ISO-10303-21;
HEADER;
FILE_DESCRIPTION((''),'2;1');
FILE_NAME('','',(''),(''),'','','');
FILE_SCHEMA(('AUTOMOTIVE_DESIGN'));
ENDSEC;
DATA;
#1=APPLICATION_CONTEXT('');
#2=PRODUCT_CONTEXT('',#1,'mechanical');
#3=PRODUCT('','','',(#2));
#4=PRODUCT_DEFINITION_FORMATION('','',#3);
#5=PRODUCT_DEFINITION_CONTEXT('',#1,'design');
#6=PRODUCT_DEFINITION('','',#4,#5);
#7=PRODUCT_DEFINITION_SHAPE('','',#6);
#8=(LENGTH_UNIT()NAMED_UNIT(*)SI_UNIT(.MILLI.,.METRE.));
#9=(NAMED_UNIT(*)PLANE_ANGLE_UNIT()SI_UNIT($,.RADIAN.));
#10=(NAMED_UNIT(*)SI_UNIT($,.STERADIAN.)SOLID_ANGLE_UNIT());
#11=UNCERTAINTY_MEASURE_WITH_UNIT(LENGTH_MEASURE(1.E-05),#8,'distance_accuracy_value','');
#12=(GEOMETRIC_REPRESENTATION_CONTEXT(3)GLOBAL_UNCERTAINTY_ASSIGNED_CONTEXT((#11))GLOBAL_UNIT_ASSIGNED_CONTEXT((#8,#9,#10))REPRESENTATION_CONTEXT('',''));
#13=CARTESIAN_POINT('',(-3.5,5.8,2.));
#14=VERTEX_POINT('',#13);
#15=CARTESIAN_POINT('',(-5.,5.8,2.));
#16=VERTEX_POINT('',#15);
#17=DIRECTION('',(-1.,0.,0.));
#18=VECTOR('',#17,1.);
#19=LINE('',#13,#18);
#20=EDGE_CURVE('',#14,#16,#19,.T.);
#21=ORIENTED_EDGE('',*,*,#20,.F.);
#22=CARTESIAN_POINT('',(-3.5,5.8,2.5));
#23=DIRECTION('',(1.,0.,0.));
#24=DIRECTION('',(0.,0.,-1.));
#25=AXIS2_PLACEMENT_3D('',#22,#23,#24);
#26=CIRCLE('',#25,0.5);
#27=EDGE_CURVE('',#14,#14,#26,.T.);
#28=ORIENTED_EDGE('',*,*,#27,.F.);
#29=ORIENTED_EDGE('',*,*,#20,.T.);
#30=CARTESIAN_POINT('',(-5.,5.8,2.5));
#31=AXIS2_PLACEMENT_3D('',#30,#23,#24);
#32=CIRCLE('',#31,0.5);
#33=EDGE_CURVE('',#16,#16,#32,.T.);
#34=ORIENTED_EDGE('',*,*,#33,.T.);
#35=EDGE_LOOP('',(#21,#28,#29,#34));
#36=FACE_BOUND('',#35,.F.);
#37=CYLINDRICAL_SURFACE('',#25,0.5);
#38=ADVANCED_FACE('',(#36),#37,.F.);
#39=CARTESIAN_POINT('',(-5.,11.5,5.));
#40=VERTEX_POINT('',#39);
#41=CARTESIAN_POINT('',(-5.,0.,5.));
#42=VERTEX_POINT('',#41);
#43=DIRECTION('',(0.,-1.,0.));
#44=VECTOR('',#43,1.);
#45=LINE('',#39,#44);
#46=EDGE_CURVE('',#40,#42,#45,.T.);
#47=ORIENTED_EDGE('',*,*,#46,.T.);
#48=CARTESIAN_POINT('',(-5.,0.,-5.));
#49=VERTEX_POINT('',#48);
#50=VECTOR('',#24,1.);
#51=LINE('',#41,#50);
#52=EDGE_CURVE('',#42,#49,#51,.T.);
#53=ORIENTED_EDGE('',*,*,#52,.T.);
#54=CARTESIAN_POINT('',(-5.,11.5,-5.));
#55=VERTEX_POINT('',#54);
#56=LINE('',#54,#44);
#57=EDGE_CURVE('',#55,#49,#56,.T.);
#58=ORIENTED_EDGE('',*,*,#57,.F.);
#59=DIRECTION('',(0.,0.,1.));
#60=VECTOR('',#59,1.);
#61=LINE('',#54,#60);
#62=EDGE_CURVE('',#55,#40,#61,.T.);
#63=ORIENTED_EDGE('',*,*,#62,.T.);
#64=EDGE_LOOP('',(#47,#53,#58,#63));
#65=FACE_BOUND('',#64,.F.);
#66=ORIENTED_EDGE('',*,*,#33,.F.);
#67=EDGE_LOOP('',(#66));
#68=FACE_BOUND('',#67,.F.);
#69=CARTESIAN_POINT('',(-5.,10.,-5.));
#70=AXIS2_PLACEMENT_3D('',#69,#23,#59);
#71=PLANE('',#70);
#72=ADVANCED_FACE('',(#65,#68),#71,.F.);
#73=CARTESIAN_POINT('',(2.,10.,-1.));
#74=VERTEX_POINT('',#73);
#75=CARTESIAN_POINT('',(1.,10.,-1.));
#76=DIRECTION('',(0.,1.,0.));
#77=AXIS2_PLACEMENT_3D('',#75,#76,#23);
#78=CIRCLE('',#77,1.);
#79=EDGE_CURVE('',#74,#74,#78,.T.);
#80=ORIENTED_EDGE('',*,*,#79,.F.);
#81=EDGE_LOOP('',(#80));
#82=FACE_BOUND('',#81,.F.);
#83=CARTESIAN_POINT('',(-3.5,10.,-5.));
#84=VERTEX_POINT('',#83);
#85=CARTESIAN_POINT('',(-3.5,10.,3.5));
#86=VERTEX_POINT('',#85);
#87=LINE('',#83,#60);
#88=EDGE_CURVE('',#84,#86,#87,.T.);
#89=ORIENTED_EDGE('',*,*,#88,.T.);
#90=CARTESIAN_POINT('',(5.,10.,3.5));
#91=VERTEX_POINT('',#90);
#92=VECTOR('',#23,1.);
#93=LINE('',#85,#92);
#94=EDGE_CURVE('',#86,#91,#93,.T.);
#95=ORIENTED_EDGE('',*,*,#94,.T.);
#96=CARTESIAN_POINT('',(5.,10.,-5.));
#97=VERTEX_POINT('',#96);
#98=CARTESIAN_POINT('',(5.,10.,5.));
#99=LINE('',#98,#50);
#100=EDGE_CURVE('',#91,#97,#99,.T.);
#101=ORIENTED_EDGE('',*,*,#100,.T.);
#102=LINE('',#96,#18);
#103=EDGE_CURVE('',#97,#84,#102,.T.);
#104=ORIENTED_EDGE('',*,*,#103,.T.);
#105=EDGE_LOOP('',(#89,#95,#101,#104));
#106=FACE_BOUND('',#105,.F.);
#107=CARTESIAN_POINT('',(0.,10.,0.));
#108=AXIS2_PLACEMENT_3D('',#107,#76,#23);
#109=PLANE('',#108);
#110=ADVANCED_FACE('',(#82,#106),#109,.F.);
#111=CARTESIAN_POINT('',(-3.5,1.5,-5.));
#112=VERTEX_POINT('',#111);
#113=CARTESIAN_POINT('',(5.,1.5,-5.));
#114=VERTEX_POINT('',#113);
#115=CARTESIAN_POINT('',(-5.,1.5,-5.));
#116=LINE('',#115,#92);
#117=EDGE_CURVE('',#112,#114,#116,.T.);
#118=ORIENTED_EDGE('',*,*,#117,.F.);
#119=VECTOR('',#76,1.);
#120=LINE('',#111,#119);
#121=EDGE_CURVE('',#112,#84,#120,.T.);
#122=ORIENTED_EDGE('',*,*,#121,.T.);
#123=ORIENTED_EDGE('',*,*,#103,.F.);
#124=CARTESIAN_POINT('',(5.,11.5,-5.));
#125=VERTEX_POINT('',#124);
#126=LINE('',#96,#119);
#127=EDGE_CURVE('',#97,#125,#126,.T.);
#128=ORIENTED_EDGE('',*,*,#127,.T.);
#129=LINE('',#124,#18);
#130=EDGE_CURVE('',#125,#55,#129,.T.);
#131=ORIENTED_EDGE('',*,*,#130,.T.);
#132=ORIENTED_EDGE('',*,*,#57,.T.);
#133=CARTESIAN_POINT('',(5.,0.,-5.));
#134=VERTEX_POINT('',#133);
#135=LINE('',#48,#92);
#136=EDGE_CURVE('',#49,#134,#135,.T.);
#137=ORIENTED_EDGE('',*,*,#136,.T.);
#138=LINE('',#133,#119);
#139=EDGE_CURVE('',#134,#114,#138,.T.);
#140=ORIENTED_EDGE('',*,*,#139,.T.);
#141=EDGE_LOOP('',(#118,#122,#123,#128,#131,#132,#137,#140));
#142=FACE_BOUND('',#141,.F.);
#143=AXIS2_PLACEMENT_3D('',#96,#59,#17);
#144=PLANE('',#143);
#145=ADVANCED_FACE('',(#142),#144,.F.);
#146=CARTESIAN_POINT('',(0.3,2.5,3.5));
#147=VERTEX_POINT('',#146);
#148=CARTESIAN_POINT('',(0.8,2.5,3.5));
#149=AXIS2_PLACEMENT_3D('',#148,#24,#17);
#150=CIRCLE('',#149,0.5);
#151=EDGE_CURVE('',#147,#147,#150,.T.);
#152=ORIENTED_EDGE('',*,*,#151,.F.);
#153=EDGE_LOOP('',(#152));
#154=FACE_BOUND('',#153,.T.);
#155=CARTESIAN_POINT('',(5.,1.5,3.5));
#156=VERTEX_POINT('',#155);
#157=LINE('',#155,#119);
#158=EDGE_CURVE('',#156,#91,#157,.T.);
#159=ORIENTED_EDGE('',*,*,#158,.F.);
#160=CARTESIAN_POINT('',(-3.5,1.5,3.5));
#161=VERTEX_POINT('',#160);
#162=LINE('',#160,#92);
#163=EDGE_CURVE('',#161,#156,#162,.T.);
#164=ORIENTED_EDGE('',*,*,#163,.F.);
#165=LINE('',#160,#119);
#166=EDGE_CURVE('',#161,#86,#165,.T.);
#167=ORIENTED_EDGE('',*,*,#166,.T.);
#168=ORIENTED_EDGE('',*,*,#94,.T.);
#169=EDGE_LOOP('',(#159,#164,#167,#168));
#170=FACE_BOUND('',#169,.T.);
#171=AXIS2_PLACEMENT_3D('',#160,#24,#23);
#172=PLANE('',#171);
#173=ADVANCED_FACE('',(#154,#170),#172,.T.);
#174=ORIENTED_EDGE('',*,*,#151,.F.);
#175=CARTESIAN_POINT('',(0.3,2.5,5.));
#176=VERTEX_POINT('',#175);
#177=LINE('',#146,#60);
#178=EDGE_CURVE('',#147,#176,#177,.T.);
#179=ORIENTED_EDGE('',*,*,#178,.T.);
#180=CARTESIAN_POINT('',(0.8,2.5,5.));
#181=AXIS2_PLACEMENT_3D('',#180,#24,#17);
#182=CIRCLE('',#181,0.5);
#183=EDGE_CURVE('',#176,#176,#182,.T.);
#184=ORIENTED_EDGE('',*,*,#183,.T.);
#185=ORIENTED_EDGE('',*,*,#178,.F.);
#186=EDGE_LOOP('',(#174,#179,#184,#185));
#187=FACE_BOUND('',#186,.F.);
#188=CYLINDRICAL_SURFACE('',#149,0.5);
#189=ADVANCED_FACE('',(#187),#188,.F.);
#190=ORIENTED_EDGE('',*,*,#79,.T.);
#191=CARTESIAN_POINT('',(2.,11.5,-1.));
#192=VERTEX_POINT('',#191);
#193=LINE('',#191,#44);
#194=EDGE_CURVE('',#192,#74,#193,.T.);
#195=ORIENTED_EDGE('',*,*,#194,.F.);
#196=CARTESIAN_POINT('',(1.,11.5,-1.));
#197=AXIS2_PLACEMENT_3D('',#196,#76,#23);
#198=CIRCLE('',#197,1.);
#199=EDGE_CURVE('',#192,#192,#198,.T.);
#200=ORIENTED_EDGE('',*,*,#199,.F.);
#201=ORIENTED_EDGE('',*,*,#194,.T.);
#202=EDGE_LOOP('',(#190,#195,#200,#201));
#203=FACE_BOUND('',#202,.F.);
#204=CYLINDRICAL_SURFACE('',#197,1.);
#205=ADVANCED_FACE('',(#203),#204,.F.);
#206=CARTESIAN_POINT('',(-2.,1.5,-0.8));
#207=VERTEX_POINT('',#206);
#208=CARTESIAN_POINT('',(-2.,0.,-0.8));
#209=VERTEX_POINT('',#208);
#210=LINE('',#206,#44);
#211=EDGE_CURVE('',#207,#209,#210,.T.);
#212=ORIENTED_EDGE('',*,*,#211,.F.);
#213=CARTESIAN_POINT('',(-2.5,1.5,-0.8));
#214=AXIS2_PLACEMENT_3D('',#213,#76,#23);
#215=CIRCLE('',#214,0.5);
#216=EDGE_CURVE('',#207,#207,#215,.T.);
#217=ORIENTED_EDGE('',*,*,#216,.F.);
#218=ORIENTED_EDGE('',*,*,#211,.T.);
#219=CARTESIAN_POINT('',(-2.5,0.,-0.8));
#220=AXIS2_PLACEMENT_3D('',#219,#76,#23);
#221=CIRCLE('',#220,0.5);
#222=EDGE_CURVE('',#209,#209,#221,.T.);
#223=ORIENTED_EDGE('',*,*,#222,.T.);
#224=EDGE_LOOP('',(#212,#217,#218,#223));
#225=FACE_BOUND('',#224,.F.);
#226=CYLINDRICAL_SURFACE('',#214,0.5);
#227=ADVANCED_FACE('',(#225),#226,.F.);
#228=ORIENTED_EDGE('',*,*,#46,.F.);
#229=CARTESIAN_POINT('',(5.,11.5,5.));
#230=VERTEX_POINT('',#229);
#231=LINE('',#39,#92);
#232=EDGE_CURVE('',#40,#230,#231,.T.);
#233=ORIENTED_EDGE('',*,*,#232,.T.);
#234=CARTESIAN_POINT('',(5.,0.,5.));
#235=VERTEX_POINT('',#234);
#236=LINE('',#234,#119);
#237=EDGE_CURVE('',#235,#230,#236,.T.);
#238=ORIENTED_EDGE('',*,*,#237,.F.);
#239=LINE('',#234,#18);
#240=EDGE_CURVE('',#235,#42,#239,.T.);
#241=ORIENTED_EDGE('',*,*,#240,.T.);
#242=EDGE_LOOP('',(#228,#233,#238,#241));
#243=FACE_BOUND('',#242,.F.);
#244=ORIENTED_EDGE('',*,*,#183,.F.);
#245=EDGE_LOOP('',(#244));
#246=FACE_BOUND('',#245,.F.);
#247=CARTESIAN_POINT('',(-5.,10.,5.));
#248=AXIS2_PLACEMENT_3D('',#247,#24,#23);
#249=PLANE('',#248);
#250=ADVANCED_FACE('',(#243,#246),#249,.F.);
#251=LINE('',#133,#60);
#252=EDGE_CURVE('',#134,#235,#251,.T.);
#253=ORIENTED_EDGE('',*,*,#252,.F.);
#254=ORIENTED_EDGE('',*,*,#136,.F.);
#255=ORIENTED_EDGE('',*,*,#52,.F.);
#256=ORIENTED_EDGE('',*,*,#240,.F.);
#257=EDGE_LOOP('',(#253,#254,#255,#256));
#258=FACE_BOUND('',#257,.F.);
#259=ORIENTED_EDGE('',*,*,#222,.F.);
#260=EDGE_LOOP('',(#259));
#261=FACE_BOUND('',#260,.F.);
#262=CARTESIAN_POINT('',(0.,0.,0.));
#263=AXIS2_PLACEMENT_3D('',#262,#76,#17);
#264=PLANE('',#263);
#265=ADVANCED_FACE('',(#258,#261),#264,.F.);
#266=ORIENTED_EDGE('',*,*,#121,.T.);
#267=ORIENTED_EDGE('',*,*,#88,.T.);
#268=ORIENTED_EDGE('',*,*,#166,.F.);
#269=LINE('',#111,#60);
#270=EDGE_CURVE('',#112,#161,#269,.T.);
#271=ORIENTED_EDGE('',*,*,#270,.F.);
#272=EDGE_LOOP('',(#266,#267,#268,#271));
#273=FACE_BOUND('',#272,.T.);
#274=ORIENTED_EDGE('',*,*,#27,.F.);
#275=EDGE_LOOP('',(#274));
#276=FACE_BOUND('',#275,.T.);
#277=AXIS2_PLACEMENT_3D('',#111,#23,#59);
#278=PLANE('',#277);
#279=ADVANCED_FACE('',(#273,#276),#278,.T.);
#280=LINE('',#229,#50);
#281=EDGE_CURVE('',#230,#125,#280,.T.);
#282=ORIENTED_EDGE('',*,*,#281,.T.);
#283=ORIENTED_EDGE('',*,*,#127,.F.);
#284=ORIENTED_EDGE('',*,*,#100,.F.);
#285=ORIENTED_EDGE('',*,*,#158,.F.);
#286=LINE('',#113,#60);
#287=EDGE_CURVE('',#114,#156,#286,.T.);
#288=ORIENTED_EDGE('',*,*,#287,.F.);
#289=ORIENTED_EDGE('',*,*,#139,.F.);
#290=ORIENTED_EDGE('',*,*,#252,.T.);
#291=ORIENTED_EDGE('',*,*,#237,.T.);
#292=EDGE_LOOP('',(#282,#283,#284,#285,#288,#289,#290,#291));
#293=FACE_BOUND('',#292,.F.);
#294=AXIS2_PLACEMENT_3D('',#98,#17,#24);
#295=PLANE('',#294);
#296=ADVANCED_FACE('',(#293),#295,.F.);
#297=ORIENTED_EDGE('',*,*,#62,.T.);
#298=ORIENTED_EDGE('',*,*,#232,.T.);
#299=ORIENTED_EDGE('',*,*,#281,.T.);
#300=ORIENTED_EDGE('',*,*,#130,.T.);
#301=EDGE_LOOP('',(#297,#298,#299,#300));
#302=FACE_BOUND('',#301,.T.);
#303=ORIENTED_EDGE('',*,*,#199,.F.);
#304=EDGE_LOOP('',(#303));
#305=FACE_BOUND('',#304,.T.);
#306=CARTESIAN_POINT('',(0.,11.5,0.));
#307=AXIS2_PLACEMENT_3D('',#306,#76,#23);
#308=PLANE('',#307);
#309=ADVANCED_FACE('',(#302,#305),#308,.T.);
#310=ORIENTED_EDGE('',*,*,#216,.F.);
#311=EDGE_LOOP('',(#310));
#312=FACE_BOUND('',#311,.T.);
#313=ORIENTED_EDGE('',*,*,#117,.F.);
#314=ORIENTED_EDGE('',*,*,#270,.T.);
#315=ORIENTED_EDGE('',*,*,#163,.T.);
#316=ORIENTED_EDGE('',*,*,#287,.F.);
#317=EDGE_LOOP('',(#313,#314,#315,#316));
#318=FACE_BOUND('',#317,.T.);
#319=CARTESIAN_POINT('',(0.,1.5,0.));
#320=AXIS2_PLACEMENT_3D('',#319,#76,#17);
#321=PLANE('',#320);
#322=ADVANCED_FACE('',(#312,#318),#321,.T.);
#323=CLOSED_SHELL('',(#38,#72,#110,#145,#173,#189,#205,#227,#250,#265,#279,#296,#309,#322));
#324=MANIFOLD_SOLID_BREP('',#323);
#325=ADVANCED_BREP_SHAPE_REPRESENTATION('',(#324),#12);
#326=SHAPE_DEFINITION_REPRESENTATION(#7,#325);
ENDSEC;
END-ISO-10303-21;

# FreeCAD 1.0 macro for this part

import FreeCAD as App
import Part
import Sketcher


def add_polygon(sketch, points):
    """Adds a closed chain of lines whose ends are joined by coincident constraints."""
    first, n = sketch.GeometryCount, len(points)
    for a, b in zip(points, points[1:] + points[:1]):
        sketch.addGeometry(Part.LineSegment(App.Vector(*a, 0), App.Vector(*b, 0)), False)
    for i in range(n):
        sketch.addConstraint(Sketcher.Constraint("Coincident", first + i, 2, first + (i + 1) % n, 1))

doc = App.newDocument("Part")
params = doc.addObject("Spreadsheet::Sheet", "Params")
for row, (alias, value) in enumerate([
    ("sketch1_width", "10 mm"),
    ("pad1_length", "1.5 mm"),
    ("sketch2_width", "8.5 mm"),
    ("sketch2_width2", "1.5 mm"),
    ("pad2_length", "8.5 mm"),
    ("sketch3_diameter", "1 mm"),
    ("pocket1_length", "8.5 mm"),
    ("sketch4_diameter", "1 mm"),
    ("pocket2_length", "8.5 mm"),
    ("sketch5_diameter", "1 mm"),
    ("pocket3_length", "8.5 mm"),
    ("sketch6_width", "10 mm"),
    ("pad3_length", "1.5 mm"),
    ("sketch7_diameter", "2 mm"),
    ("pocket4_length", "1.5 mm"),
], start=1):
    params.set(f"A{row}", alias)
    params.set(f"B{row}", "=" + value)
    params.setAlias(f"B{row}", alias)

body = doc.addObject("PartDesign::Body", "Body")

sketch1 = body.newObject("Sketcher::SketchObject", "Sketch")
sketch1.AttachmentSupport = (doc.getObject("XZ_Plane"), [""])
sketch1.MapMode = "FlatFace"
add_polygon(sketch1, [(-5, 5), (5, 5), (5, -5), (-5, -5)])
sketch1.addConstraint(Sketcher.Constraint("Horizontal", 0))
sketch1.addConstraint(Sketcher.Constraint("Vertical", 1))
sketch1.addConstraint(Sketcher.Constraint("Horizontal", 2))
sketch1.addConstraint(Sketcher.Constraint("Vertical", 3))
sketch1.addConstraint(Sketcher.Constraint("Symmetric", 0, 2, 2, 2, -1, 1))
sketch1.addConstraint(Sketcher.Constraint("Equal", 2, 1))
sketch1.addConstraint(Sketcher.Constraint("DistanceX", 0, 1, 0, 2, 10.0))
sketch1.setExpression("Constraints[10]", "Params.sketch1_width")
pad1 = body.newObject("PartDesign::Pad", "Pad")
pad1.Profile = sketch1
pad1.setExpression("Length", "Params.pad1_length")
pad1.Reversed = True

sketch2 = body.newObject("Sketcher::SketchObject", "Sketch001")
sketch2.AttachmentSupport = (doc.getObject("XZ_Plane"), [""])
sketch2.MapMode = "FlatFace"
sketch2.AttachmentOffset = App.Placement(App.Vector(0, 0, -1.5), App.Rotation())
add_polygon(sketch2, [(-5, -5), (-5, 5), (5, 5), (5, 3.5), (-3.5, 3.5), (-3.5, -5)])
sketch2.addConstraint(Sketcher.Constraint("Vertical", 0))
sketch2.addConstraint(Sketcher.Constraint("Horizontal", 1))
sketch2.addConstraint(Sketcher.Constraint("Vertical", 2))
sketch2.addConstraint(Sketcher.Constraint("Horizontal", 3))
sketch2.addConstraint(Sketcher.Constraint("Vertical", 4))
sketch2.addConstraint(Sketcher.Constraint("Horizontal", 5))
sketch2.addConstraint(Sketcher.Constraint("Symmetric", 1, 2, 5, 2, -1, 1))
sketch2.addConstraint(Sketcher.Constraint("Equal", 1, 0))
sketch2.addConstraint(Sketcher.Constraint("Equal", 5, 2))
sketch2.addConstraint(Sketcher.Constraint("DistanceX", 3, 2, 3, 1, 8.5))
sketch2.addConstraint(Sketcher.Constraint("DistanceX", 5, 2, 5, 1, 1.5))
sketch2.setExpression("Constraints[15]", "Params.sketch2_width")
sketch2.setExpression("Constraints[16]", "Params.sketch2_width2")
pad2 = body.newObject("PartDesign::Pad", "Pad001")
pad2.Profile = sketch2
pad2.setExpression("Length", "Params.pad2_length")
pad2.Reversed = True

sketch3 = body.newObject("Sketcher::SketchObject", "Sketch002")
sketch3.AttachmentSupport = (doc.getObject("XZ_Plane"), [""])
sketch3.MapMode = "FlatFace"
sketch3.AttachmentOffset = App.Placement(App.Vector(0, 0, -1.5), App.Rotation())
sketch3.addGeometry(Part.Circle(App.Vector(-2.5, -0.8, 0), App.Vector(0, 0, 1), 0.5), False)
sketch3.addConstraint(Sketcher.Constraint("Diameter", 0, 1.0))
sketch3.addConstraint(Sketcher.Constraint("DistanceX", 0, 3, -1, 1, 2.5))
sketch3.addConstraint(Sketcher.Constraint("DistanceY", 0, 3, -1, 1, 0.8))
sketch3.setExpression("Constraints[0]", "Params.sketch3_diameter")
pocket1 = body.newObject("PartDesign::Pocket", "Pocket")
pocket1.Profile = sketch3
pocket1.setExpression("Length", "Params.pocket1_length")
pocket1.Reversed = True

sketch4 = body.newObject("Sketcher::SketchObject", "Sketch003")
sketch4.AttachmentSupport = (doc.getObject("YZ_Plane"), [""])
sketch4.MapMode = "FlatFace"
sketch4.AttachmentOffset = App.Placement(App.Vector(0, 0, -3.5), App.Rotation())
sketch4.addGeometry(Part.Circle(App.Vector(5.8, 2.5, 0), App.Vector(0, 0, 1), 0.5), False)
sketch4.addConstraint(Sketcher.Constraint("Diameter", 0, 1.0))
sketch4.addConstraint(Sketcher.Constraint("DistanceX", -1, 1, 0, 3, 5.8))
sketch4.addConstraint(Sketcher.Constraint("DistanceY", -1, 1, 0, 3, 2.5))
sketch4.setExpression("Constraints[0]", "Params.sketch4_diameter")
pocket2 = body.newObject("PartDesign::Pocket", "Pocket001")
pocket2.Profile = sketch4
pocket2.setExpression("Length", "Params.pocket2_length")

sketch5 = body.newObject("Sketcher::SketchObject", "Sketch004")
sketch5.AttachmentSupport = (doc.getObject("XY_Plane"), [""])
sketch5.MapMode = "FlatFace"
sketch5.AttachmentOffset = App.Placement(App.Vector(0, 0, 3.5), App.Rotation())
sketch5.addGeometry(Part.Circle(App.Vector(0.8, 2.5, 0), App.Vector(0, 0, 1), 0.5), False)
sketch5.addConstraint(Sketcher.Constraint("Diameter", 0, 1.0))
sketch5.addConstraint(Sketcher.Constraint("DistanceX", -1, 1, 0, 3, 0.8))
sketch5.addConstraint(Sketcher.Constraint("DistanceY", -1, 1, 0, 3, 2.5))
sketch5.setExpression("Constraints[0]", "Params.sketch5_diameter")
pocket3 = body.newObject("PartDesign::Pocket", "Pocket002")
pocket3.Profile = sketch5
pocket3.setExpression("Length", "Params.pocket3_length")
pocket3.Reversed = True

sketch6 = body.newObject("Sketcher::SketchObject", "Sketch005")
sketch6.AttachmentSupport = (doc.getObject("XZ_Plane"), [""])
sketch6.MapMode = "FlatFace"
sketch6.AttachmentOffset = App.Placement(App.Vector(0, 0, -10), App.Rotation())
add_polygon(sketch6, [(-5, 5), (5, 5), (5, -5), (-5, -5)])
sketch6.addConstraint(Sketcher.Constraint("Horizontal", 0))
sketch6.addConstraint(Sketcher.Constraint("Vertical", 1))
sketch6.addConstraint(Sketcher.Constraint("Horizontal", 2))
sketch6.addConstraint(Sketcher.Constraint("Vertical", 3))
sketch6.addConstraint(Sketcher.Constraint("Symmetric", 0, 2, 2, 2, -1, 1))
sketch6.addConstraint(Sketcher.Constraint("Equal", 2, 1))
sketch6.addConstraint(Sketcher.Constraint("DistanceX", 0, 1, 0, 2, 10.0))
sketch6.setExpression("Constraints[10]", "Params.sketch6_width")
pad3 = body.newObject("PartDesign::Pad", "Pad002")
pad3.Profile = sketch6
pad3.setExpression("Length", "Params.pad3_length")
pad3.Reversed = True

sketch7 = body.newObject("Sketcher::SketchObject", "Sketch006")
sketch7.AttachmentSupport = (doc.getObject("XZ_Plane"), [""])
sketch7.MapMode = "FlatFace"
sketch7.AttachmentOffset = App.Placement(App.Vector(0, 0, -11.5), App.Rotation())
sketch7.addGeometry(Part.Circle(App.Vector(1, -1, 0), App.Vector(0, 0, 1), 1), False)
sketch7.addConstraint(Sketcher.Constraint("Diameter", 0, 2.0))
sketch7.addConstraint(Sketcher.Constraint("DistanceX", -1, 1, 0, 3, 1.0))
sketch7.addConstraint(Sketcher.Constraint("DistanceY", 0, 3, -1, 1, 1.0))
sketch7.setExpression("Constraints[0]", "Params.sketch7_diameter")
pocket4 = body.newObject("PartDesign::Pocket", "Pocket003")
pocket4.Profile = sketch7
pocket4.setExpression("Length", "Params.pocket4_length")
pocket4.Reversed = True

doc.recompute()
